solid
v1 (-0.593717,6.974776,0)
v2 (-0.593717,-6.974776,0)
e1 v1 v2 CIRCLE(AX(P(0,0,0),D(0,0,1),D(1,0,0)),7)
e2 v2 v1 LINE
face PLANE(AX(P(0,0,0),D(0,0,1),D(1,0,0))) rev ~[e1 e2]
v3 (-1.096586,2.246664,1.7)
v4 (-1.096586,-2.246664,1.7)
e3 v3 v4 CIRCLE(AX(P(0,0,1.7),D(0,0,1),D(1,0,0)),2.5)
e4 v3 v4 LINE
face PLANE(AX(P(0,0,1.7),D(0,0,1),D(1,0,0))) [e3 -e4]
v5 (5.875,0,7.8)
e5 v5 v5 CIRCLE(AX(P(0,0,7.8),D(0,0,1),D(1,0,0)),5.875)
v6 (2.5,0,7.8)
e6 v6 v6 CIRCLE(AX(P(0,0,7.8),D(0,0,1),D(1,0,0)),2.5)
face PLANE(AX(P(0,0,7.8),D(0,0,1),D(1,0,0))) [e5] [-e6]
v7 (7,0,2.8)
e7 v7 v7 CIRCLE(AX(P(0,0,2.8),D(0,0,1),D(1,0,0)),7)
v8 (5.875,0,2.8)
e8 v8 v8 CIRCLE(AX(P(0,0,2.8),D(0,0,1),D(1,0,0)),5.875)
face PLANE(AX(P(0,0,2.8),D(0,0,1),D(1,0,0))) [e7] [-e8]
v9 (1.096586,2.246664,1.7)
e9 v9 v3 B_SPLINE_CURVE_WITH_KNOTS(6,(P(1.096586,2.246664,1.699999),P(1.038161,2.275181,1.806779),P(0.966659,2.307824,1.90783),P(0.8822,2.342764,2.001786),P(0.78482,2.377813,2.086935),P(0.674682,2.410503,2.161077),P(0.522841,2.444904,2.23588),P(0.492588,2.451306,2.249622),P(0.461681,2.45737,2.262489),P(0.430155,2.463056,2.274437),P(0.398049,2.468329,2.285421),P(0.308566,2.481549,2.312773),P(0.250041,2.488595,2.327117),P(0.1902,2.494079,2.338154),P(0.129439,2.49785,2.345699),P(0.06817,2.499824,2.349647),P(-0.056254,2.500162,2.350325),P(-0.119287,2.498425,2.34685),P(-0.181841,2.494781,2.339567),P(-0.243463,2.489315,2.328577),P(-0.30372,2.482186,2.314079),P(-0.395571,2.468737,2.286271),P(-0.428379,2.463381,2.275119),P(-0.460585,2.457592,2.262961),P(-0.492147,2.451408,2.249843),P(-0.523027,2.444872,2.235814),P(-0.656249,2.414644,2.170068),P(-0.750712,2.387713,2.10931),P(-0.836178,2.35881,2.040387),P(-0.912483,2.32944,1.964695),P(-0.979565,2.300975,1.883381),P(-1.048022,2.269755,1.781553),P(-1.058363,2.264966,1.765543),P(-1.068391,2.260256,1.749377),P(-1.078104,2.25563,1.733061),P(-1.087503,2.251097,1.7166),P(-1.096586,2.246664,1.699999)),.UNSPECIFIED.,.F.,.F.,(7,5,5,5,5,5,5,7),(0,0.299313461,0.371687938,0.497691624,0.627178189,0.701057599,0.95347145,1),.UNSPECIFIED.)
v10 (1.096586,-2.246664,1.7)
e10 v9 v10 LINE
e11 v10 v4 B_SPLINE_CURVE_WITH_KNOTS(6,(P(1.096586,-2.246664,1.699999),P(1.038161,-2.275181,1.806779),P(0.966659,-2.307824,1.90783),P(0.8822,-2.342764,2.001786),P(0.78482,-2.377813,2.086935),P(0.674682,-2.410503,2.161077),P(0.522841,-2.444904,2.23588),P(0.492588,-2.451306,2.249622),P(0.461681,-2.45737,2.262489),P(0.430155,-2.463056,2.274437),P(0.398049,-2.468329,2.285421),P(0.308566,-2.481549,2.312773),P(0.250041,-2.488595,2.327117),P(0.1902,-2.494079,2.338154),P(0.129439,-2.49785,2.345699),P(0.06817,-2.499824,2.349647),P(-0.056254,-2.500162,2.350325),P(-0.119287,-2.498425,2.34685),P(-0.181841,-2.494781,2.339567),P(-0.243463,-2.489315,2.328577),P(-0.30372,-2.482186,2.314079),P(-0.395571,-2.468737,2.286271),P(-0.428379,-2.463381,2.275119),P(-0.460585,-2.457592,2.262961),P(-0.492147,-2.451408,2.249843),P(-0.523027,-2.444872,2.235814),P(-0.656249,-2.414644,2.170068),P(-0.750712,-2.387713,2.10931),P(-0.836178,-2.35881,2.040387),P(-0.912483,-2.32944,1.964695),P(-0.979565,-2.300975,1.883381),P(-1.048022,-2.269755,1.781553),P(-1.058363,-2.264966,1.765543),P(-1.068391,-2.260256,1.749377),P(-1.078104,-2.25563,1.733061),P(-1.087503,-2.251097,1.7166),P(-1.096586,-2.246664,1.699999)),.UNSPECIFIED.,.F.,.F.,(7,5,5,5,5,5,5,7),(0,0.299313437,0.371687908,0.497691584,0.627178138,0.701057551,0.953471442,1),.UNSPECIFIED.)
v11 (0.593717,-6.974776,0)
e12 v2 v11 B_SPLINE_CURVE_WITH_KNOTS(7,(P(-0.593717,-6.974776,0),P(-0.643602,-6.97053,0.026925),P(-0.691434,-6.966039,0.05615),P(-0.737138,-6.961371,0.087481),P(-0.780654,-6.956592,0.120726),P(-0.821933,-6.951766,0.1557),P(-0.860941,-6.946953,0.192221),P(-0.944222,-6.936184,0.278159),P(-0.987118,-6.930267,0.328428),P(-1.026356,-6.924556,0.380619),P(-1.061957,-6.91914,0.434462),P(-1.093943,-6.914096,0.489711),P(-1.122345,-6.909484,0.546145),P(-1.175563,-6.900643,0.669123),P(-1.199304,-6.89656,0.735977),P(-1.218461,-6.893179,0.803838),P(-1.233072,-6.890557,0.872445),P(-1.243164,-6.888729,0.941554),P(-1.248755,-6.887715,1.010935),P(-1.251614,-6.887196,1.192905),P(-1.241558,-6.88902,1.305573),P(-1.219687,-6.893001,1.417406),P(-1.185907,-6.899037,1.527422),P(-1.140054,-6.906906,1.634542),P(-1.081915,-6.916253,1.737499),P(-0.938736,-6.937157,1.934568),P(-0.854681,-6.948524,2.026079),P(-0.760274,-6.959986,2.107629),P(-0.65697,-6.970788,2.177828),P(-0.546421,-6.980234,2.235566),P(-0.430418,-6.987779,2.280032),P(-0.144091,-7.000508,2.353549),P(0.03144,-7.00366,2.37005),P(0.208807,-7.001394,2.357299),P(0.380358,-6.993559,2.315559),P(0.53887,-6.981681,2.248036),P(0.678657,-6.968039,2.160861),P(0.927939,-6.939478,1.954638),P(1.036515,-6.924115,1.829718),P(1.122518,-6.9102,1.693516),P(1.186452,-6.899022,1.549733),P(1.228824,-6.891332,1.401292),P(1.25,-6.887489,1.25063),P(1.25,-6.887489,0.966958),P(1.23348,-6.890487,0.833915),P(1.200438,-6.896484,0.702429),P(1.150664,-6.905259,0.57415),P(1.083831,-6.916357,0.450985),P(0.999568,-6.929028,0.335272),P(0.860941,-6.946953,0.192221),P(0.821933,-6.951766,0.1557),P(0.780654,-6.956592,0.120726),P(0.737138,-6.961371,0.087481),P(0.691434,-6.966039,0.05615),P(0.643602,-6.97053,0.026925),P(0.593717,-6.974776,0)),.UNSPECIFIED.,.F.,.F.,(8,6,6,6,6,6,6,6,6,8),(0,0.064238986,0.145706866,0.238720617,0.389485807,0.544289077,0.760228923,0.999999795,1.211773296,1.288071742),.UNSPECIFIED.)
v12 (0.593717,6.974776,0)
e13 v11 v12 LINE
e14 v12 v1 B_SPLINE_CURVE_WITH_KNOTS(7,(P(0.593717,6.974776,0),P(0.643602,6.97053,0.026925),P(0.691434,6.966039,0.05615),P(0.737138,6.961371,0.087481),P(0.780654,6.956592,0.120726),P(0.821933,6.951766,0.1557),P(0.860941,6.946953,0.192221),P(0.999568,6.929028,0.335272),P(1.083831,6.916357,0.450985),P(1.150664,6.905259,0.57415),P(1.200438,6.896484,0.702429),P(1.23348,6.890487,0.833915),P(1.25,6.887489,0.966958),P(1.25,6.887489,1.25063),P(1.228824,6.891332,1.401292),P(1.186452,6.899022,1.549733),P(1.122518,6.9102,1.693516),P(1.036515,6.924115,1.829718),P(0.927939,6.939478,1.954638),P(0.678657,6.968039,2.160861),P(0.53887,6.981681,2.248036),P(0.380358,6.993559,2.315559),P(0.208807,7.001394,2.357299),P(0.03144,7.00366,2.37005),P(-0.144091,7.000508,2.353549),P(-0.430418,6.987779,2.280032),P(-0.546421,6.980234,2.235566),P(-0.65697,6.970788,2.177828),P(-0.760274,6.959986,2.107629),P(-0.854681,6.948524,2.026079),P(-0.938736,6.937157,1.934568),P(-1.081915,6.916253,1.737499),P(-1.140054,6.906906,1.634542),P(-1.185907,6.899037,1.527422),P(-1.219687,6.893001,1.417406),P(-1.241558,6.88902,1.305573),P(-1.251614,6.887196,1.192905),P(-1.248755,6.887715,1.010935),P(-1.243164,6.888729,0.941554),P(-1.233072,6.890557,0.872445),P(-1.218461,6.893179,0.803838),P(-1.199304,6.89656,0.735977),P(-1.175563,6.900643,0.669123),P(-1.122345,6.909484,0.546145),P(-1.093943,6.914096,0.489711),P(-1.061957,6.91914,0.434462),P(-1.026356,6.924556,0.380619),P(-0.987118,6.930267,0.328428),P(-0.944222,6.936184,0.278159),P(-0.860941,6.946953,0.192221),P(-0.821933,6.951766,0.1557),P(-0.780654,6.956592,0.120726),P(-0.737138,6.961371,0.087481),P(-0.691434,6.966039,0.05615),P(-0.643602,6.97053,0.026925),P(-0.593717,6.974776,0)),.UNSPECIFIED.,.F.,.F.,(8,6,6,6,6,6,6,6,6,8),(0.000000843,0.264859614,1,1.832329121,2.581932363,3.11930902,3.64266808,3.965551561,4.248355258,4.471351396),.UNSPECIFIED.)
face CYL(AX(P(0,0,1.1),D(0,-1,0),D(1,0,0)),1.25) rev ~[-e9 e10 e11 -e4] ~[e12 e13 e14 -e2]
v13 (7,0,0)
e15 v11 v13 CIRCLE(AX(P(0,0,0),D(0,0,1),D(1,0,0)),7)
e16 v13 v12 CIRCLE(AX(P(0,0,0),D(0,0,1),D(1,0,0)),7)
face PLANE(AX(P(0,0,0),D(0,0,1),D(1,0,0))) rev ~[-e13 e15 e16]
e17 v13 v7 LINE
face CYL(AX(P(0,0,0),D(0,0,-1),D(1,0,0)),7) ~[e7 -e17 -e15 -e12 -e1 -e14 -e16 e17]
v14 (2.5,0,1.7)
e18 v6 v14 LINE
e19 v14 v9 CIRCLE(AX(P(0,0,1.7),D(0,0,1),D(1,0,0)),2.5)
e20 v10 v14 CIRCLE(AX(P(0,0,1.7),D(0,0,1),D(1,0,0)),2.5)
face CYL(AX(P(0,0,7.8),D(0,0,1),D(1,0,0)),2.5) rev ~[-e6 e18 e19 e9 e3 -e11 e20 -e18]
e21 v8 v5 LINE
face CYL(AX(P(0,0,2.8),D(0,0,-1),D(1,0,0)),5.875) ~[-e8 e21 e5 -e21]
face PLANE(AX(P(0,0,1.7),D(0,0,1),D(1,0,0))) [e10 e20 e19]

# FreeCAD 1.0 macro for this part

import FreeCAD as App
import Part
import Sketcher

V = App.Vector

doc = App.newDocument("Part")
body = doc.addObject("PartDesign::Body", "Body")

sketch1 = body.newObject("Sketcher::SketchObject", "Sketch")
sketch1.AttachmentSupport = (doc.getObject("XY_Plane"), [""])
sketch1.MapMode = "FlatFace"
sketch1.addGeometry(Part.Circle(V(0, 0, 0), V(0, 0, 1), 7), False)
sketch1.addConstraint(Sketcher.Constraint("Coincident", 0, 3, -1, 1))
sketch1.addConstraint(Sketcher.Constraint("Diameter", 0, 14.0))
pad1 = body.newObject("PartDesign::Pad", "Pad")
pad1.Profile = sketch1
pad1.Length = 2.8

sketch2 = body.newObject("Sketcher::SketchObject", "Sketch001")
sketch2.AttachmentSupport = (doc.getObject("XY_Plane"), [""])
sketch2.MapMode = "FlatFace"
sketch2.AttachmentOffset = App.Placement(V(0, 0, 2.8), App.Rotation())
sketch2.addGeometry(Part.Circle(V(0, 0, 0), V(0, 0, 1), 6), False)
sketch2.addConstraint(Sketcher.Constraint("Coincident", 0, 3, -1, 1))
sketch2.addConstraint(Sketcher.Constraint("Diameter", 0, 11.75))
pad2 = body.newObject("PartDesign::Pad", "Pad001")
pad2.Profile = sketch2
pad2.Length = 5

sketch3 = body.newObject("Sketcher::SketchObject", "Sketch002")
sketch3.AttachmentSupport = (doc.getObject("XZ_Plane"), [""])
sketch3.MapMode = "FlatFace"
sketch3.addGeometry(Part.Circle(V(0, 1.1, 0), V(0, 0, 1), 1.2), False)
sketch3.addConstraint(Sketcher.Constraint("PointOnObject", 0, 3, -2))
sketch3.addConstraint(Sketcher.Constraint("Diameter", 0, 2.5))
sketch3.addConstraint(Sketcher.Constraint("DistanceY", -1, 1, 0, 3, 1.1))
pocket1 = body.newObject("PartDesign::Pocket", "Pocket")
pocket1.Profile = sketch3
pocket1.Type = "ThroughAll"
pocket1.Midplane = True

sketch4 = body.newObject("Sketcher::SketchObject", "Sketch003")
sketch4.AttachmentSupport = (doc.getObject("XY_Plane"), [""])
sketch4.MapMode = "FlatFace"
sketch4.AttachmentOffset = App.Placement(V(0, 0, 7.8), App.Rotation())
sketch4.addGeometry(Part.Circle(V(0, 0, 0), V(0, 0, 1), 2.5), False)
sketch4.addConstraint(Sketcher.Constraint("Coincident", 0, 3, -1, 1))
sketch4.addConstraint(Sketcher.Constraint("Diameter", 0, 5.0))
pocket2 = body.newObject("PartDesign::Pocket", "Pocket001")
pocket2.Profile = sketch4
pocket2.Length = 6.1

doc.recompute()
